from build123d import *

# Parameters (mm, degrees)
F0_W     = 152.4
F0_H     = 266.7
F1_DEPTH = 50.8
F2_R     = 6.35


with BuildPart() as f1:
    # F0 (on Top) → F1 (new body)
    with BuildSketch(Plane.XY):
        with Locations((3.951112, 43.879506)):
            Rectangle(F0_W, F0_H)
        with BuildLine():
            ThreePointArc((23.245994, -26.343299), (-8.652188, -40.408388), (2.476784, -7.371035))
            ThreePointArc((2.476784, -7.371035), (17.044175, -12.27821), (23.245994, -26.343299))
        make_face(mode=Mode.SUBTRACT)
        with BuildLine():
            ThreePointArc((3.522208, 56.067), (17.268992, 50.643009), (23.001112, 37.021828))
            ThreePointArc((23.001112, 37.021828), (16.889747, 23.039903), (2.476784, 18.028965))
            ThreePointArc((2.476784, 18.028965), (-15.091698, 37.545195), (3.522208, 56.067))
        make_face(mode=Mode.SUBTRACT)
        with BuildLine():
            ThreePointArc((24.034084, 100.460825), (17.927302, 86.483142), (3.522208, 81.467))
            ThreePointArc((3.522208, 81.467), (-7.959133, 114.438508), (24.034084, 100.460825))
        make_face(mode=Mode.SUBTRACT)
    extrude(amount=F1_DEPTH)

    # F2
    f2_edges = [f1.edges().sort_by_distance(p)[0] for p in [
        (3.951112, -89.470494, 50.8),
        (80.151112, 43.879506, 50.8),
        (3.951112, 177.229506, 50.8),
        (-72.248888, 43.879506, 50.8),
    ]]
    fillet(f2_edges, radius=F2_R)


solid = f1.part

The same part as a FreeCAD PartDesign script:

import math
import FreeCAD as App
import Part
import Sketcher
from FreeCAD import Vector
Q = App.Units.Quantity


def edges_at(feature, points):
    """Names of the edges that pass closest to the given points."""
    edges = feature.Shape.Edges
    near = lambda p: min(range(len(edges)), key=lambda i: edges[i].distToShape(Part.Vertex(*p))[0])
    return sorted({f"Edge{near(p) + 1}" for p in points})

doc = App.newDocument("Part")
body = doc.addObject("PartDesign::Body", "Body")

sketch1 = body.newObject("Sketcher::SketchObject", "Sketch")
sketch1.AttachmentSupport = (doc.getObject("XY_Plane"), [""])
sketch1.MapMode = "FlatFace"
sketch1.addGeometry([
    Part.LineSegment(Vector(-72.248888, 177.229506, 0), Vector(-72.248888, -89.470494, 0)),
    Part.LineSegment(Vector(-72.248888, -89.470494, 0), Vector(80.151112, -89.470494, 0)),
    Part.LineSegment(Vector(80.151112, -89.470494, 0), Vector(80.151112, 177.229506, 0)),
    Part.LineSegment(Vector(80.151112, 177.229506, 0), Vector(-72.248888, 177.229506, 0)),
    Part.ArcOfCircle(Part.Circle(Vector(4.195994, -26.3433, 0), Vector(0, 0, 1), 19.05), math.radians(0.000002), math.radians(95.17783)),
    Part.ArcOfCircle(Part.Circle(Vector(4.195994, -26.343299, 0), Vector(0, 0, 1), 19.05), math.radians(95.177831), math.radians(360.000001)),
    Part.ArcOfCircle(Part.Circle(Vector(3.951112, 37.021829, 0), Vector(0, 0, 1), 19.05), math.radians(91.290102), math.radians(265.561296)),
    Part.ArcOfCircle(Part.Circle(Vector(3.95111, 37.021827, 0), Vector(0, 0, 1), 19.050002), math.radians(0.000002), math.radians(91.290098)),
    Part.ArcOfCircle(Part.Circle(Vector(3.951113, 37.021828, 0), Vector(0, 0, 1), 19.049999), math.radians(-94.438707), math.radians(0.000001)),
    Part.ArcOfCircle(Part.Circle(Vector(4.984084, 100.460825, 0), Vector(0, 0, 1), 19.05), math.radians(-0.000001), math.radians(265.598857)),
    Part.ArcOfCircle(Part.Circle(Vector(4.984086, 100.460824, 0), Vector(0, 0, 1), 19.049998), math.radians(-94.401148), math.radians(0.000004)),
], False)
sketch1.addConstraint([
    Sketcher.Constraint("Coincident", 0, 2, 1, 1),
    Sketcher.Constraint("Coincident", 1, 2, 2, 1),
    Sketcher.Constraint("Coincident", 2, 2, 3, 1),
    Sketcher.Constraint("Coincident", 3, 2, 0, 1),
    Sketcher.Constraint("Coincident", 4, 1, 5, 2),
    Sketcher.Constraint("Coincident", 5, 1, 4, 2),
    Sketcher.Constraint("Coincident", 6, 1, 7, 2),
    Sketcher.Constraint("Coincident", 7, 1, 8, 2),
    Sketcher.Constraint("Coincident", 8, 1, 6, 2),
    Sketcher.Constraint("Coincident", 9, 1, 10, 2),
    Sketcher.Constraint("Coincident", 10, 1, 9, 2),
    Sketcher.Constraint("Vertical", 0),
    Sketcher.Constraint("Horizontal", 1),
    Sketcher.Constraint("Vertical", 2),
    Sketcher.Constraint("Horizontal", 3),
    Sketcher.Constraint("Coincident", 7, 3, 6, 3),
    Sketcher.Constraint("DistanceX", 1, 1, 1, 2, Q("6 in")),
    Sketcher.Constraint("Radius", 4, Q("0.75 in")),
    Sketcher.Constraint("Radius", 5, Q("0.75 in")),
    Sketcher.Constraint("Radius", 6, Q("0.75 in")),
    Sketcher.Constraint("Radius", 8, Q("0.75 in")),
    Sketcher.Constraint("Radius", 9, Q("0.75 in")),
    Sketcher.Constraint("Radius", 10, Q("0.7499999 in")),
    Sketcher.Constraint("DistanceY", 0, 2, 0, 1, Q("10.5 in")),
    Sketcher.Constraint("DistanceX", 0, 2, 7, 3, Q("2.9999999 in")),
    Sketcher.Constraint("DistanceY", 5, 1, 8, 1, Q("1 in")),
    Sketcher.Constraint("DistanceY", 6, 1, 10, 1, Q("1 in")),
    Sketcher.Constraint("DistanceY", 4, 3, -1, 1, 26.3433),
    Sketcher.Constraint("DistanceY", 4, 1, -1, 1, 26.343299),
    Sketcher.Constraint("DistanceY", -1, 1, 6, 1, 56.067),
    Sketcher.Constraint("DistanceY", 7, 3, 9, 3, 63.438998),
    Sketcher.Constraint("DistanceX", -1, 1, 6, 3, 3.951112),
    Sketcher.Constraint("DistanceY", -1, 1, 6, 3, 37.021829),
    Sketcher.Constraint("DistanceX", 8, 3, 5, 3, 0.244881),
    Sketcher.Constraint("DistanceX", 8, 3, 9, 3, 1.032972),
    Sketcher.Constraint("DistanceY", 0, 2, 7, 3, 126.492321),
    Sketcher.Constraint("DistanceX", 5, 1, 5, 3, 1.71921),
    Sketcher.Constraint("DistanceY", 7, 1, 6, 1, 19.045172),
    Sketcher.Constraint("DistanceY", -1, 1, 9, 1, 100.460825),
])
pad1 = body.newObject("PartDesign::Pad", "Pad")
pad1.Profile = sketch1
pad1.Length = Q("2 in")
doc.recompute()

fillet = body.newObject("PartDesign::Fillet", "Fillet")
fillet.Base = (pad1, edges_at(pad1, [
    (3.951, -89.47, 50.8),
    (80.151, 43.88, 50.8),
    (3.951, 177.23, 50.8),
    (-72.249, 43.88, 50.8),
]))
fillet.Radius = Q("0.25 in")

doc.recompute()
